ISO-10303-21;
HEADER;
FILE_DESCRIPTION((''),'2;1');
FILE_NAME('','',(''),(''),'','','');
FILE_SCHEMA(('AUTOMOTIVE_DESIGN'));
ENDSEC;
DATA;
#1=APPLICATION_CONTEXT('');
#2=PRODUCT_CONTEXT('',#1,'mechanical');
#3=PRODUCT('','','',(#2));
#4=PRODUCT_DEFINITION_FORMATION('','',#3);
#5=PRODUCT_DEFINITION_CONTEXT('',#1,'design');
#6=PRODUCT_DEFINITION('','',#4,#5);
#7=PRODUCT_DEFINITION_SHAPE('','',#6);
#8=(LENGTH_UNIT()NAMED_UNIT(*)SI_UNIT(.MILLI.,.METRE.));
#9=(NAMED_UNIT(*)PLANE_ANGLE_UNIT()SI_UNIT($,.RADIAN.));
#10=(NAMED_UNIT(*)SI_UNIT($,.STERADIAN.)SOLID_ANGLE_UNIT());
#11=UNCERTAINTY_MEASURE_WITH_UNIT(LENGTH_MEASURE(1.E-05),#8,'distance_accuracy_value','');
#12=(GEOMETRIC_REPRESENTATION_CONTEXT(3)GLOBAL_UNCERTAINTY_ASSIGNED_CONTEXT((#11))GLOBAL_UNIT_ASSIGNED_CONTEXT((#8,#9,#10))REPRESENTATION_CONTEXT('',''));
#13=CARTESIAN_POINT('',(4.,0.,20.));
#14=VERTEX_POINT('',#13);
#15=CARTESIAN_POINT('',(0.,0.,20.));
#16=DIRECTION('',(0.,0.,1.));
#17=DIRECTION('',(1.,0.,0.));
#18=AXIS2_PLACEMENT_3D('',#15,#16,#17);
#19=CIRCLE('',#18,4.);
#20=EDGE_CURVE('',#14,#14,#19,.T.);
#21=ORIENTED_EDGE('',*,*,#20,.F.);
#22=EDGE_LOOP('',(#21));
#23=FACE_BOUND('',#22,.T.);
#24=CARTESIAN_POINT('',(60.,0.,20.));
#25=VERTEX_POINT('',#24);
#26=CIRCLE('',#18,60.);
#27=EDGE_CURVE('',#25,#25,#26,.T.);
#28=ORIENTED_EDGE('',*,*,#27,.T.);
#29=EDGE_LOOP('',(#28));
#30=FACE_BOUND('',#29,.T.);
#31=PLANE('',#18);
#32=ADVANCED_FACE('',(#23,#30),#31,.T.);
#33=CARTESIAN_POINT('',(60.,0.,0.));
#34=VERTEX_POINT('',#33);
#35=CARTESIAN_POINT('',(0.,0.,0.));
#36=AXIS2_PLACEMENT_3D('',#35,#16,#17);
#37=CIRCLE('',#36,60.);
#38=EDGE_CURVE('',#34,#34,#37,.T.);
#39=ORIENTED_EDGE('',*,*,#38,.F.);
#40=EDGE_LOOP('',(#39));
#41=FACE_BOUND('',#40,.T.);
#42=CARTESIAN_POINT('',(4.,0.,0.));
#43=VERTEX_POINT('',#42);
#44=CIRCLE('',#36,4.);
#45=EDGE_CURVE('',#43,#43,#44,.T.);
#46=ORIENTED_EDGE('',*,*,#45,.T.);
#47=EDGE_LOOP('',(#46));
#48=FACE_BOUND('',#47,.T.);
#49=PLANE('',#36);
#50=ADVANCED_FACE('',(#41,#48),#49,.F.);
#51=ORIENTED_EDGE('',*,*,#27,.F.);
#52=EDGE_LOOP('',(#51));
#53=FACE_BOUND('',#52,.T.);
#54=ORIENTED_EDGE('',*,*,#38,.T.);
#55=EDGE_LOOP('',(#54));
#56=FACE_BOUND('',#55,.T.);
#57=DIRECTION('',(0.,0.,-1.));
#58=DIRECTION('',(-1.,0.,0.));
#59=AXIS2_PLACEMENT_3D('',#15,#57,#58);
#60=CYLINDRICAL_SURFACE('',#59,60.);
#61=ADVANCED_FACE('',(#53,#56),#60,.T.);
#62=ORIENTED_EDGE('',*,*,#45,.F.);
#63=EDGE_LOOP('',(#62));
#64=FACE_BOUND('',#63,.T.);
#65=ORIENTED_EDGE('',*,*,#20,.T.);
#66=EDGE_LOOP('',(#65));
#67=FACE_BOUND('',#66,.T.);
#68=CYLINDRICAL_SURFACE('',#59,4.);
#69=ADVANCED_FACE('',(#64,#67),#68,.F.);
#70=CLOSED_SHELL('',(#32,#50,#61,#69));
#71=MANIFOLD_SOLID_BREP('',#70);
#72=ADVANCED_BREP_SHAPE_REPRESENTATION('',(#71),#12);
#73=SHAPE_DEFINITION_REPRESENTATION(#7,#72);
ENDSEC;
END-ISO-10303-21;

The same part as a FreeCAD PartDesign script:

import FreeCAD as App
import Part
import Sketcher

V = App.Vector
Q = App.Units.Quantity

doc = App.newDocument("Part")
body = doc.addObject("PartDesign::Body", "Body")

# Sketch on XY plane
sketch1 = body.newObject("Sketcher::SketchObject", "Sketch")
sketch1.AttachmentSupport = (doc.getObject("XY_Plane"), [""])
sketch1.MapMode = "FlatFace"
sketch1.addGeometry(Part.Circle(V(0, 0, 0), V(0, 0, 1), 60), False)
sketch1.addGeometry(Part.Circle(V(0, 0, 0), V(0, 0, 1), 4), False)
sketch1.addConstraint(Sketcher.Constraint("Coincident", 0, 3, -1, 1))
sketch1.addConstraint(Sketcher.Constraint("Coincident", 1, 3, -1, 1))
sketch1.addConstraint(Sketcher.Constraint("Diameter", 0, Q("120 mm")))
sketch1.addConstraint(Sketcher.Constraint("Diameter", 1, Q("8 mm")))
pad1 = body.newObject("PartDesign::Pad", "Pad")
pad1.Profile = sketch1
pad1.Length = 20

doc.recompute()
